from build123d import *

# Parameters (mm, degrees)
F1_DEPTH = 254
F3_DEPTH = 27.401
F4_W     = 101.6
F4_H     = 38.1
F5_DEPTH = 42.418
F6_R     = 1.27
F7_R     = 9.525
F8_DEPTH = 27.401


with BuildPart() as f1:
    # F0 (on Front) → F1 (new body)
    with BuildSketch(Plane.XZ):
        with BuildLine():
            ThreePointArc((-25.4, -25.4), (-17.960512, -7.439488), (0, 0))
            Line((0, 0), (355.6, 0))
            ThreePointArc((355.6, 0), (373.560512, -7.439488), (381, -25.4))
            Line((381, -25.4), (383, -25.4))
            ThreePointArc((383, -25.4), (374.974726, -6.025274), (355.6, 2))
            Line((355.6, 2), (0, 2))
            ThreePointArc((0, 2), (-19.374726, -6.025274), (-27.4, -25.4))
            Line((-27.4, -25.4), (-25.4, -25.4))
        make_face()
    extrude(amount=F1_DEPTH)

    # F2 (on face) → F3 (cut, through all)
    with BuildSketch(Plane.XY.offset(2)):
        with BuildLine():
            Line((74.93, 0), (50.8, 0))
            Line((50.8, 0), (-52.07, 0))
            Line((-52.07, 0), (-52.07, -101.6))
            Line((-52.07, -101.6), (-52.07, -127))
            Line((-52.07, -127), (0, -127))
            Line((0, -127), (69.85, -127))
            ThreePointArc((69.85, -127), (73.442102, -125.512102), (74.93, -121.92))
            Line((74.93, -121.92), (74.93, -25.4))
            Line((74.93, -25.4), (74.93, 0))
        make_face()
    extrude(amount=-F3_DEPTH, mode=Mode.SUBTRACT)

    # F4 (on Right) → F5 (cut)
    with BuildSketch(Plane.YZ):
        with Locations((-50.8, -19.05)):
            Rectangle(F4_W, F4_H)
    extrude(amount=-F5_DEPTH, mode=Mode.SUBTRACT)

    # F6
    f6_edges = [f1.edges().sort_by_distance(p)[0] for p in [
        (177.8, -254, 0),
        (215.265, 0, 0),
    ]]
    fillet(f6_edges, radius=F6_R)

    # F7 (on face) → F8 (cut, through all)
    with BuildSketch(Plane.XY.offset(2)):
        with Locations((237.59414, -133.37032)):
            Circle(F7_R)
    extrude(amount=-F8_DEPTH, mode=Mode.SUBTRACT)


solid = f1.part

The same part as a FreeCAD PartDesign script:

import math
import FreeCAD as App
import Part
import Sketcher

V = App.Vector
Q = App.Units.Quantity


def edges_at(feature, points):
    """Names of the edges that pass closest to the given points."""
    edges = feature.Shape.Edges
    near = lambda p: min(range(len(edges)), key=lambda i: edges[i].distToShape(Part.Vertex(*p))[0])
    return sorted({f"Edge{near(p) + 1}" for p in points})


def add_polygon(sketch, points):
    """Adds a closed chain of lines whose ends are joined by coincident constraints."""
    first, n = sketch.GeometryCount, len(points)
    for a, b in zip(points, points[1:] + points[:1]):
        sketch.addGeometry(Part.LineSegment(App.Vector(*a, 0), App.Vector(*b, 0)), False)
    for i in range(n):
        sketch.addConstraint(Sketcher.Constraint("Coincident", first + i, 2, first + (i + 1) % n, 1))

doc = App.newDocument("Part")
params = doc.addObject("Spreadsheet::Sheet", "Params")
for row, (alias, value) in enumerate([
    ("sketch1_radius", "1 in"),
    ("sketch1_width", "14 in"),
    ("pad1_length", "10 in"),
    ("sketch2_radius", "0.2000001 in"),
    ("sketch2_width", "5 in"),
    ("sketch3_width", "4 in"),
    ("sketch3_height", "1.5 in"),
    ("pocket2_length", "1.67 in"),
    ("fillet_radius", "0.05 in"),
    ("sketch4_diameter", "0.75 in"),
], start=1):
    params.set(f"A{row}", alias)
    params.set(f"B{row}", "=" + value)
    params.setAlias(f"B{row}", alias)

body = doc.addObject("PartDesign::Body", "Body")

sketch1 = doc.addObject("Sketcher::SketchObject", "Sketch")
body.addObject(sketch1)
sketch1.AttachmentSupport = (doc.XZ_Plane, [""])
sketch1.MapMode = "FlatFace"
sketch1.addGeometry([
    Part.ArcOfCircle(Part.Circle(V(0, -25.4, 0), V(0, 0, 1), 25.4), math.radians(90), math.radians(180)),
    Part.LineSegment(V(0, 0, 0), V(355.6, 0, 0)),
    Part.ArcOfCircle(Part.Circle(V(355.6, -25.4, 0), V(0, 0, 1), 25.4), math.radians(0), math.radians(90)),
    Part.LineSegment(V(381, -25.4, 0), V(383, -25.4, 0)),
    Part.ArcOfCircle(Part.Circle(V(355.6, -25.4, 0), V(0, 0, 1), 27.4), math.radians(0), math.radians(90)),
    Part.LineSegment(V(355.6, 2, 0), V(0, 2, 0)),
    Part.ArcOfCircle(Part.Circle(V(0, -25.4, 0), V(0, 0, 1), 27.4), math.radians(90), math.radians(180)),
    Part.LineSegment(V(-27.4, -25.4, 0), V(-25.4, -25.4, 0)),
], False)
sketch1.addConstraint([
    Sketcher.Constraint("Tangent", 0, 1, 1, 1),
    Sketcher.Constraint("Tangent", 1, 2, 2, 2),
    Sketcher.Constraint("Coincident", 2, 1, 3, 1),
    Sketcher.Constraint("Coincident", 3, 2, 4, 1),
    Sketcher.Constraint("Tangent", 4, 2, 5, 1),
    Sketcher.Constraint("Tangent", 5, 2, 6, 1),
    Sketcher.Constraint("Coincident", 6, 2, 7, 1),
    Sketcher.Constraint("Coincident", 7, 2, 0, 2),
    Sketcher.Constraint("Horizontal", 1),
    Sketcher.Constraint("Horizontal", 3),
    Sketcher.Constraint("Horizontal", 5),
    Sketcher.Constraint("Horizontal", 7),
    Sketcher.Constraint("Coincident", 0, 1, -1, 1),
    Sketcher.Constraint("Coincident", 4, 3, 2, 3),
    Sketcher.Constraint("Coincident", 6, 3, 0, 3),
    Sketcher.Constraint("Equal", 0, 2),
    Sketcher.Constraint("Horizontal", 6, 3, 2, 1),
    Sketcher.Constraint("Horizontal", 3, 2, 6, 2),
    Sketcher.Constraint("Radius", 0, Q("1 in")),
    Sketcher.Constraint("DistanceX", 1, 1, 1, 2, Q("14 in")),
    Sketcher.Constraint("Radius", 4, Q("27.399999 mm")),
])
sketch1.setExpression("Constraints[18]", "Params.sketch1_radius")
sketch1.setExpression("Constraints[19]", "Params.sketch1_width")
pad1 = doc.addObject("PartDesign::Pad", "Pad")
body.addObject(pad1)
pad1.Profile = sketch1
pad1.setExpression("Length", "Params.pad1_length")

sketch2 = doc.addObject("Sketcher::SketchObject", "Sketch001")
body.addObject(sketch2)
sketch2.AttachmentSupport = (doc.XY_Plane, [""])
sketch2.MapMode = "FlatFace"
sketch2.AttachmentOffset = App.Placement(V(0, 0, 2), App.Rotation())
sketch2.addGeometry([
    Part.LineSegment(V(75, 0, 0), V(-52, 0, 0)),
    Part.LineSegment(V(-52, 0, 0), V(-52, -127, 0)),
    Part.LineSegment(V(-52, -127, 0), V(70, -127, 0)),
    Part.ArcOfCircle(Part.Circle(V(70, -122, 0), V(0, 0, 1), 5), math.radians(-90), math.radians(0)),
    Part.LineSegment(V(75, -122, 0), V(75, 0, 0)),
], False)
sketch2.addConstraint([
    Sketcher.Constraint("Coincident", 0, 2, 1, 1),
    Sketcher.Constraint("Coincident", 1, 2, 2, 1),
    Sketcher.Constraint("Tangent", 2, 2, 3, 1),
    Sketcher.Constraint("Tangent", 3, 2, 4, 1),
    Sketcher.Constraint("Coincident", 4, 2, 0, 1),
    Sketcher.Constraint("Horizontal", 0),
    Sketcher.Constraint("Vertical", 1),
    Sketcher.Constraint("Horizontal", 2),
    Sketcher.Constraint("Vertical", 4),
    Sketcher.Constraint("PointOnObject", 0, 2, -1),
    Sketcher.Constraint("Equal", 0, 1),
    Sketcher.Constraint("Radius", 3, Q("0.2000001 in")),
    Sketcher.Constraint("DistanceX", 0, 2, 0, 1, Q("5 in")),
    Sketcher.Constraint("DistanceX", -1, 1, 3, 3, Q("2.7499999 in")),
])
sketch2.setExpression("Constraints[11]", "Params.sketch2_radius")
sketch2.setExpression("Constraints[12]", "Params.sketch2_width")
pocket1 = doc.addObject("PartDesign::Pocket", "Pocket")
body.addObject(pocket1)
pocket1.Profile = sketch2
pocket1.Type = "ThroughAll"

sketch3 = doc.addObject("Sketcher::SketchObject", "Sketch002")
body.addObject(sketch3)
sketch3.AttachmentSupport = (doc.YZ_Plane, [""])
sketch3.MapMode = "FlatFace"
add_polygon(sketch3, [(-102, 0), (-102, -38), (0, -38), (0, 0)])
sketch3.addConstraint([
    Sketcher.Constraint("Vertical", 0),
    Sketcher.Constraint("Horizontal", 1),
    Sketcher.Constraint("Vertical", 2),
    Sketcher.Constraint("Horizontal", 3),
    Sketcher.Constraint("Coincident", 2, 2, -1, 1),
    Sketcher.Constraint("DistanceX", 1, 1, 1, 2, Q("4 in")),
    Sketcher.Constraint("DistanceY", 0, 2, 0, 1, Q("1.5 in")),
])
sketch3.setExpression("Constraints[9]", "Params.sketch3_width")
sketch3.setExpression("Constraints[10]", "Params.sketch3_height")
pocket2 = doc.addObject("PartDesign::Pocket", "Pocket001")
body.addObject(pocket2)
pocket2.Profile = sketch3
pocket2.setExpression("Length", "Params.pocket2_length")
doc.recompute()

fillet = doc.addObject("PartDesign::Fillet", "Fillet")
body.addObject(fillet)
fillet.Base = (pocket2, edges_at(pocket2, [(177.8, -254, 0), (215.265, 0, 0)]))
fillet.setExpression("Radius", "Params.fillet_radius")

sketch4 = doc.addObject("Sketcher::SketchObject", "Sketch003")
body.addObject(sketch4)
sketch4.AttachmentSupport = (doc.XY_Plane, [""])
sketch4.MapMode = "FlatFace"
sketch4.AttachmentOffset = App.Placement(V(0, 0, 2), App.Rotation())
sketch4.addGeometry(Part.Circle(V(238, -133, 0), V(0, 0, 1), 10), False)
sketch4.addConstraint([
    Sketcher.Constraint("Diameter", 0, Q("0.75 in")),
    Sketcher.Constraint("DistanceX", -1, 1, 0, 3, Q("9.3541 in")),
    Sketcher.Constraint("DistanceY", 0, 3, -1, 1, Q("5.2508 in")),
])
sketch4.setExpression("Constraints[0]", "Params.sketch4_diameter")
pocket3 = doc.addObject("PartDesign::Pocket", "Pocket002")
body.addObject(pocket3)
pocket3.Profile = sketch4
pocket3.Type = "ThroughAll"

doc.recompute()
